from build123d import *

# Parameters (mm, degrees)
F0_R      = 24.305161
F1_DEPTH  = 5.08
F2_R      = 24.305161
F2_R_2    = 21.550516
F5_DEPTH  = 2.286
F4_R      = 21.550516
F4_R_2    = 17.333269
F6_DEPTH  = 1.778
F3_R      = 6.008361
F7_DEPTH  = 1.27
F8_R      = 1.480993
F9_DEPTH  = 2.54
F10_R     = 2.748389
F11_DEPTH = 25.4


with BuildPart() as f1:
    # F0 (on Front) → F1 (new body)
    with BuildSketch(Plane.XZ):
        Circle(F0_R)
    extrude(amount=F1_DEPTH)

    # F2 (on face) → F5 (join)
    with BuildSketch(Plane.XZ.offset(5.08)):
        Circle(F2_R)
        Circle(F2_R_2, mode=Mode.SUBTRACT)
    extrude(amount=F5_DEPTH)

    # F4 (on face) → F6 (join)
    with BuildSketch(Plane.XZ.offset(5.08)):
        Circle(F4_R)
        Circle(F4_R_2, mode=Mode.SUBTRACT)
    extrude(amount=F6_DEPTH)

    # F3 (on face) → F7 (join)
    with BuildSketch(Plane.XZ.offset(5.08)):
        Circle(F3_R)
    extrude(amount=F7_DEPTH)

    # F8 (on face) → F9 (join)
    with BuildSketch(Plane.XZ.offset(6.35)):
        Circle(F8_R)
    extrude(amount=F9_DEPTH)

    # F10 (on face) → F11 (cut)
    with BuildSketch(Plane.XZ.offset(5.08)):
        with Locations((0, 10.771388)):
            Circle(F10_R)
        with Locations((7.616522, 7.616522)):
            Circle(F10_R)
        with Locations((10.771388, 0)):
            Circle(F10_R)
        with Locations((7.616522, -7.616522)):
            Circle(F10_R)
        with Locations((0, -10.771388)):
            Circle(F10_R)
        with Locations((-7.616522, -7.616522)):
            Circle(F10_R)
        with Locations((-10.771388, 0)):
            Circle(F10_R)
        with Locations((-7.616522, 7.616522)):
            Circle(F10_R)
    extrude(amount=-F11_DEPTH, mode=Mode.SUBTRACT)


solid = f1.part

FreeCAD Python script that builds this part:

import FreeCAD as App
import Part
import Sketcher
Q = App.Units.Quantity

doc = App.newDocument("Part")
body = doc.addObject("PartDesign::Body", "Body")

sketch1 = body.newObject("Sketcher::SketchObject", "Sketch")
sketch1.AttachmentSupport = (doc.getObject("XZ_Plane"), [""])
sketch1.MapMode = "FlatFace"
sketch1.addGeometry(Part.Circle(App.Vector(0, 0, 0), App.Vector(0, 0, 1), 24), False)
sketch1.addConstraint(Sketcher.Constraint("Coincident", 0, 3, -1, 1))
sketch1.addConstraint(Sketcher.Constraint("Diameter", 0, 48.610322))
pad1 = body.newObject("PartDesign::Pad", "Pad")
pad1.Profile = sketch1
pad1.Length = Q("0.2 in")

sketch2 = body.newObject("Sketcher::SketchObject", "Sketch001")
sketch2.AttachmentSupport = (doc.getObject("XZ_Plane"), [""])
sketch2.MapMode = "FlatFace"
sketch2.AttachmentOffset = App.Placement(App.Vector(0, 0, 0.2 * 25.4), App.Rotation())
sketch2.addGeometry(Part.Circle(App.Vector(0, 0, 0), App.Vector(0, 0, 1), 24), False)
sketch2.addGeometry(Part.Circle(App.Vector(0, 0, 0), App.Vector(0, 0, 1), 22), False)
sketch2.addConstraint(Sketcher.Constraint("Coincident", 0, 3, -1, 1))
sketch2.addConstraint(Sketcher.Constraint("Coincident", 1, 3, -1, 1))
sketch2.addConstraint(Sketcher.Constraint("Diameter", 0, 48.610322))
sketch2.addConstraint(Sketcher.Constraint("Diameter", 1, 43.101032))
pad2 = body.newObject("PartDesign::Pad", "Pad001")
pad2.Profile = sketch2
pad2.Length = Q("0.09 in")

sketch3 = body.newObject("Sketcher::SketchObject", "Sketch002")
sketch3.AttachmentSupport = (doc.getObject("XZ_Plane"), [""])
sketch3.MapMode = "FlatFace"
sketch3.AttachmentOffset = App.Placement(App.Vector(0, 0, 0.2 * 25.4), App.Rotation())
sketch3.addGeometry(Part.Circle(App.Vector(0, 0, 0), App.Vector(0, 0, 1), 22), False)
sketch3.addGeometry(Part.Circle(App.Vector(0, 0, 0), App.Vector(0, 0, 1), 17), False)
sketch3.addConstraint(Sketcher.Constraint("Coincident", 0, 3, -1, 1))
sketch3.addConstraint(Sketcher.Constraint("Coincident", 1, 3, -1, 1))
sketch3.addConstraint(Sketcher.Constraint("Diameter", 0, 43.101032))
sketch3.addConstraint(Sketcher.Constraint("Diameter", 1, 34.666538))
pad3 = body.newObject("PartDesign::Pad", "Pad002")
pad3.Profile = sketch3
pad3.Length = Q("0.07 in")

sketch4 = body.newObject("Sketcher::SketchObject", "Sketch003")
sketch4.AttachmentSupport = (doc.getObject("XZ_Plane"), [""])
sketch4.MapMode = "FlatFace"
sketch4.AttachmentOffset = App.Placement(App.Vector(0, 0, 0.2 * 25.4), App.Rotation())
sketch4.addGeometry(Part.Circle(App.Vector(0, 0, 0), App.Vector(0, 0, 1), 6), False)
sketch4.addConstraint(Sketcher.Constraint("Coincident", 0, 3, -1, 1))
sketch4.addConstraint(Sketcher.Constraint("Diameter", 0, 12.016722))
pad4 = body.newObject("PartDesign::Pad", "Pad003")
pad4.Profile = sketch4
pad4.Length = Q("0.05 in")

sketch5 = body.newObject("Sketcher::SketchObject", "Sketch004")
sketch5.AttachmentSupport = (doc.getObject("XZ_Plane"), [""])
sketch5.MapMode = "FlatFace"
sketch5.AttachmentOffset = App.Placement(App.Vector(0, 0, 0.25 * 25.4), App.Rotation())
sketch5.addGeometry(Part.Circle(App.Vector(0, 0, 0), App.Vector(0, 0, 1), 1.5), False)
sketch5.addConstraint(Sketcher.Constraint("Coincident", 0, 3, -1, 1))
sketch5.addConstraint(Sketcher.Constraint("Diameter", 0, 2.961986))
pad5 = body.newObject("PartDesign::Pad", "Pad004")
pad5.Profile = sketch5
pad5.Length = Q("0.1 in")

sketch6 = body.newObject("Sketcher::SketchObject", "Sketch005")
sketch6.AttachmentSupport = (doc.getObject("XZ_Plane"), [""])
sketch6.MapMode = "FlatFace"
sketch6.AttachmentOffset = App.Placement(App.Vector(0, 0, 0.2 * 25.4), App.Rotation())
sketch6.addGeometry(Part.Circle(App.Vector(0, 10.8, 0), App.Vector(0, 0, 1), 2.7), False)
sketch6.addGeometry(Part.Circle(App.Vector(7.6, 7.6, 0), App.Vector(0, 0, 1), 2.7), False)
sketch6.addGeometry(Part.Circle(App.Vector(10.8, 0, 0), App.Vector(0, 0, 1), 2.7), False)
sketch6.addGeometry(Part.Circle(App.Vector(7.6, -7.6, 0), App.Vector(0, 0, 1), 2.7), False)
sketch6.addGeometry(Part.Circle(App.Vector(0, -10.8, 0), App.Vector(0, 0, 1), 2.7), False)
sketch6.addGeometry(Part.Circle(App.Vector(-7.6, -7.6, 0), App.Vector(0, 0, 1), 2.7), False)
sketch6.addGeometry(Part.Circle(App.Vector(-10.8, 0, 0), App.Vector(0, 0, 1), 2.7), False)
sketch6.addGeometry(Part.Circle(App.Vector(-7.6, 7.6, 0), App.Vector(0, 0, 1), 2.7), False)
sketch6.addConstraint(Sketcher.Constraint("Equal", 0, 1))
sketch6.addConstraint(Sketcher.Constraint("Equal", 1, 2))
sketch6.addConstraint(Sketcher.Constraint("Equal", 2, 3))
sketch6.addConstraint(Sketcher.Constraint("Equal", 3, 4))
sketch6.addConstraint(Sketcher.Constraint("Equal", 4, 5))
sketch6.addConstraint(Sketcher.Constraint("Equal", 5, 6))
sketch6.addConstraint(Sketcher.Constraint("Equal", 6, 7))
sketch6.addConstraint(Sketcher.Constraint("Symmetric", 0, 3, 4, 3, -1, 1))
sketch6.addConstraint(Sketcher.Constraint("Symmetric", 1, 3, 5, 3, -1, 1))
sketch6.addConstraint(Sketcher.Constraint("Symmetric", 2, 3, 6, 3, -1, 1))
sketch6.addConstraint(Sketcher.Constraint("Symmetric", 3, 3, 7, 3, -1, 1))
sketch6.addConstraint(Sketcher.Constraint("Symmetric", 3, 3, 5, 3, -2))
sketch6.addConstraint(Sketcher.Constraint("PointOnObject", 0, 3, -2))
sketch6.addConstraint(Sketcher.Constraint("PointOnObject", 2, 3, -1))
sketch6.addConstraint(Sketcher.Constraint("Diameter", 0, 5.496778))
sketch6.addConstraint(Sketcher.Constraint("DistanceX", -1, 1, 1, 3, 7.616522))
sketch6.addConstraint(Sketcher.Constraint("DistanceY", -1, 1, 1, 3, 7.616522))
sketch6.addConstraint(Sketcher.Constraint("DistanceY", 3, 3, 0, 3, 18.38791))
sketch6.addConstraint(Sketcher.Constraint("DistanceX", 5, 3, 2, 3, 18.38791))
pocket1 = body.newObject("PartDesign::Pocket", "Pocket")
pocket1.Profile = sketch6
pocket1.Length = Q("1 in")

doc.recompute()
